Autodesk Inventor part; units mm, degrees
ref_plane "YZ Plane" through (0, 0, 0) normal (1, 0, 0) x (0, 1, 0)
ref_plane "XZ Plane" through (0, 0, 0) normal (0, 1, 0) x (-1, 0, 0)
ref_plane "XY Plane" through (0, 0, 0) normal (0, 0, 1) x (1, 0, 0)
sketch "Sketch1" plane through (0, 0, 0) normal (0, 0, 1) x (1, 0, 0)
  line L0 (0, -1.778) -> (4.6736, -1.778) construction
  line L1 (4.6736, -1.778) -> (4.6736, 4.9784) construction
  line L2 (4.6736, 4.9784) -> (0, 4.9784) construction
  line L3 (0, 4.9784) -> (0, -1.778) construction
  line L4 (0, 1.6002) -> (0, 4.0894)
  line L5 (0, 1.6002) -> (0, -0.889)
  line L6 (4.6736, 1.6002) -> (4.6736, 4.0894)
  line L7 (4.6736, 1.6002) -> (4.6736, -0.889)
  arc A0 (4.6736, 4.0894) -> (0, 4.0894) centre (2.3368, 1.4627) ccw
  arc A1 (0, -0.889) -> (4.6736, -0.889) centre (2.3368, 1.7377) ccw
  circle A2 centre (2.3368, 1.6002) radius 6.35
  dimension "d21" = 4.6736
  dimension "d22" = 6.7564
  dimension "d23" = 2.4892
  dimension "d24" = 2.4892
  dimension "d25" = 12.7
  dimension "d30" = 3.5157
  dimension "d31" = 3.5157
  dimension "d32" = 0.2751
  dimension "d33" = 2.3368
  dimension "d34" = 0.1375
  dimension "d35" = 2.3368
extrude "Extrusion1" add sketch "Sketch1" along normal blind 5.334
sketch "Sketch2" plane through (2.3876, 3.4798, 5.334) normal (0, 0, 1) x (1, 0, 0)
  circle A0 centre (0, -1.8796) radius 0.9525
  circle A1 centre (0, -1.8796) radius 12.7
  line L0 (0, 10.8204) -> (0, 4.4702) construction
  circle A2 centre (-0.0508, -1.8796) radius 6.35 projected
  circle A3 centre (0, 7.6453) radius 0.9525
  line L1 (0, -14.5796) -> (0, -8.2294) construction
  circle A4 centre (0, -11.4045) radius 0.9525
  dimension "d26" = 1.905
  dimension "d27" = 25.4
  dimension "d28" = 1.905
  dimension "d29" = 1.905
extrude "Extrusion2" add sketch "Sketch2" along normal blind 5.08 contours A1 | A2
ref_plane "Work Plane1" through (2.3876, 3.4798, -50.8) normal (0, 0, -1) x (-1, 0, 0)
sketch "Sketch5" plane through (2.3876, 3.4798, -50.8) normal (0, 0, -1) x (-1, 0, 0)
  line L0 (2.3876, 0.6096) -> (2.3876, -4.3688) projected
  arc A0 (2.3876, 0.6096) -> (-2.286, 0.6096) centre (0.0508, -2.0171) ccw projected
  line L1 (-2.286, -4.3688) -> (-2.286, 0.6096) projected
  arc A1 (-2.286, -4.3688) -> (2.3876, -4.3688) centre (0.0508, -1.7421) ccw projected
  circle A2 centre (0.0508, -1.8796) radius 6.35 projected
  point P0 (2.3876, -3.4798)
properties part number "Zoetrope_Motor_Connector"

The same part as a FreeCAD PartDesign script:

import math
import FreeCAD as App
import Part
import Sketcher

V = App.Vector
Q = App.Units.Quantity

doc = App.newDocument("Part")
body = doc.addObject("PartDesign::Body", "Body")

sketch1 = body.newObject("Sketcher::SketchObject", "Sketch")
sketch1.AttachmentSupport = (doc.getObject("XY_Plane"), [""])
sketch1.MapMode = "FlatFace"
sketch1.addGeometry([
    Part.Circle(V(2.3368, 1.6002, 0), V(0, 0, 1), 6.35),
    Part.LineSegment(V(0, -0.889, 0), V(0, 4.0894, 0)),
    Part.ArcOfCircle(Part.Circle(V(2.3368, 1.4627, 0), V(0, 0, 1), 3.515706), math.radians(48.342641), math.radians(131.657359)),
    Part.LineSegment(V(4.6736, 4.0894, 0), V(4.6736, -0.889, 0)),
    Part.ArcOfCircle(Part.Circle(V(2.3368, 1.7377, 0), V(0, 0, 1), 3.515706), math.radians(-131.657359), math.radians(-48.342641)),
], False)
sketch1.addConstraint([
    Sketcher.Constraint("Coincident", 1, 2, 2, 2),
    Sketcher.Constraint("Coincident", 2, 1, 3, 1),
    Sketcher.Constraint("Coincident", 3, 2, 4, 2),
    Sketcher.Constraint("Coincident", 4, 1, 1, 1),
    Sketcher.Constraint("Vertical", 1),
    Sketcher.Constraint("Vertical", 3),
    Sketcher.Constraint("Equal", 2, 4),
    Sketcher.Constraint("PointOnObject", 1, 2, -2),
    Sketcher.Constraint("Horizontal", 1, 2, 2, 1),
    Sketcher.Constraint("Horizontal", 3, 2, 4, 1),
    Sketcher.Constraint("Vertical", 0, 3, 2, 3),
    Sketcher.Constraint("Diameter", 0, Q("0.5 in")),
    Sketcher.Constraint("Radius", 2, 3.5157),
    Sketcher.Constraint("DistanceX", -1, 1, 0, 3, Q("0.092 in")),
    Sketcher.Constraint("DistanceY", 0, 3, 1, 2, Q("0.098 in")),
    Sketcher.Constraint("DistanceY", 3, 2, 0, 3, Q("0.098 in")),
    Sketcher.Constraint("DistanceY", -1, 1, 0, 3, Q("0.063 in")),
])
pad1 = body.newObject("PartDesign::Pad", "Pad")
pad1.Profile = sketch1
pad1.Length = Q("0.21 in")

sketch2 = body.newObject("Sketcher::SketchObject", "Sketch001")
sketch2.AttachmentSupport = (doc.getObject("XY_Plane"), [""])
sketch2.MapMode = "FlatFace"
sketch2.AttachmentOffset = App.Placement(V(0, 0, 0.21 * 25.4), App.Rotation())
sketch2.addGeometry([
    Part.Circle(V(2.3876, 1.6002, 0), V(0, 0, 1), 12.7),
    Part.Circle(V(2.3876, -7.9247, 0), V(0, 0, 1), 0.9525),
    Part.Circle(V(2.3876, 11.1251, 0), V(0, 0, 1), 0.9525),
    Part.Circle(V(2.3876, 1.6002, 0), V(0, 0, 1), 0.9525),
], False)
sketch2.addConstraint([
    Sketcher.Constraint("Coincident", 3, 3, 0, 3),
    Sketcher.Constraint("Equal", 1, 2),
    Sketcher.Constraint("Equal", 2, 3),
    Sketcher.Constraint("Vertical", 0, 3, 1, 3),
    Sketcher.Constraint("Vertical", 1, 3, 2, 3),
    Sketcher.Constraint("Diameter", 0, Q("1 in")),
    Sketcher.Constraint("Diameter", 1, Q("0.075 in")),
    Sketcher.Constraint("DistanceY", 1, 3, 2, 3, Q("0.75 in")),
    Sketcher.Constraint("DistanceX", -1, 1, 0, 3, Q("0.094 in")),
    Sketcher.Constraint("DistanceY", -1, 1, 0, 3, Q("0.063 in")),
    Sketcher.Constraint("DistanceY", 1, 3, -1, 1, Q("0.312 in")),
])
pad2 = body.newObject("PartDesign::Pad", "Pad001")
pad2.Profile = sketch2
pad2.Length = Q("0.2 in")

doc.recompute()
